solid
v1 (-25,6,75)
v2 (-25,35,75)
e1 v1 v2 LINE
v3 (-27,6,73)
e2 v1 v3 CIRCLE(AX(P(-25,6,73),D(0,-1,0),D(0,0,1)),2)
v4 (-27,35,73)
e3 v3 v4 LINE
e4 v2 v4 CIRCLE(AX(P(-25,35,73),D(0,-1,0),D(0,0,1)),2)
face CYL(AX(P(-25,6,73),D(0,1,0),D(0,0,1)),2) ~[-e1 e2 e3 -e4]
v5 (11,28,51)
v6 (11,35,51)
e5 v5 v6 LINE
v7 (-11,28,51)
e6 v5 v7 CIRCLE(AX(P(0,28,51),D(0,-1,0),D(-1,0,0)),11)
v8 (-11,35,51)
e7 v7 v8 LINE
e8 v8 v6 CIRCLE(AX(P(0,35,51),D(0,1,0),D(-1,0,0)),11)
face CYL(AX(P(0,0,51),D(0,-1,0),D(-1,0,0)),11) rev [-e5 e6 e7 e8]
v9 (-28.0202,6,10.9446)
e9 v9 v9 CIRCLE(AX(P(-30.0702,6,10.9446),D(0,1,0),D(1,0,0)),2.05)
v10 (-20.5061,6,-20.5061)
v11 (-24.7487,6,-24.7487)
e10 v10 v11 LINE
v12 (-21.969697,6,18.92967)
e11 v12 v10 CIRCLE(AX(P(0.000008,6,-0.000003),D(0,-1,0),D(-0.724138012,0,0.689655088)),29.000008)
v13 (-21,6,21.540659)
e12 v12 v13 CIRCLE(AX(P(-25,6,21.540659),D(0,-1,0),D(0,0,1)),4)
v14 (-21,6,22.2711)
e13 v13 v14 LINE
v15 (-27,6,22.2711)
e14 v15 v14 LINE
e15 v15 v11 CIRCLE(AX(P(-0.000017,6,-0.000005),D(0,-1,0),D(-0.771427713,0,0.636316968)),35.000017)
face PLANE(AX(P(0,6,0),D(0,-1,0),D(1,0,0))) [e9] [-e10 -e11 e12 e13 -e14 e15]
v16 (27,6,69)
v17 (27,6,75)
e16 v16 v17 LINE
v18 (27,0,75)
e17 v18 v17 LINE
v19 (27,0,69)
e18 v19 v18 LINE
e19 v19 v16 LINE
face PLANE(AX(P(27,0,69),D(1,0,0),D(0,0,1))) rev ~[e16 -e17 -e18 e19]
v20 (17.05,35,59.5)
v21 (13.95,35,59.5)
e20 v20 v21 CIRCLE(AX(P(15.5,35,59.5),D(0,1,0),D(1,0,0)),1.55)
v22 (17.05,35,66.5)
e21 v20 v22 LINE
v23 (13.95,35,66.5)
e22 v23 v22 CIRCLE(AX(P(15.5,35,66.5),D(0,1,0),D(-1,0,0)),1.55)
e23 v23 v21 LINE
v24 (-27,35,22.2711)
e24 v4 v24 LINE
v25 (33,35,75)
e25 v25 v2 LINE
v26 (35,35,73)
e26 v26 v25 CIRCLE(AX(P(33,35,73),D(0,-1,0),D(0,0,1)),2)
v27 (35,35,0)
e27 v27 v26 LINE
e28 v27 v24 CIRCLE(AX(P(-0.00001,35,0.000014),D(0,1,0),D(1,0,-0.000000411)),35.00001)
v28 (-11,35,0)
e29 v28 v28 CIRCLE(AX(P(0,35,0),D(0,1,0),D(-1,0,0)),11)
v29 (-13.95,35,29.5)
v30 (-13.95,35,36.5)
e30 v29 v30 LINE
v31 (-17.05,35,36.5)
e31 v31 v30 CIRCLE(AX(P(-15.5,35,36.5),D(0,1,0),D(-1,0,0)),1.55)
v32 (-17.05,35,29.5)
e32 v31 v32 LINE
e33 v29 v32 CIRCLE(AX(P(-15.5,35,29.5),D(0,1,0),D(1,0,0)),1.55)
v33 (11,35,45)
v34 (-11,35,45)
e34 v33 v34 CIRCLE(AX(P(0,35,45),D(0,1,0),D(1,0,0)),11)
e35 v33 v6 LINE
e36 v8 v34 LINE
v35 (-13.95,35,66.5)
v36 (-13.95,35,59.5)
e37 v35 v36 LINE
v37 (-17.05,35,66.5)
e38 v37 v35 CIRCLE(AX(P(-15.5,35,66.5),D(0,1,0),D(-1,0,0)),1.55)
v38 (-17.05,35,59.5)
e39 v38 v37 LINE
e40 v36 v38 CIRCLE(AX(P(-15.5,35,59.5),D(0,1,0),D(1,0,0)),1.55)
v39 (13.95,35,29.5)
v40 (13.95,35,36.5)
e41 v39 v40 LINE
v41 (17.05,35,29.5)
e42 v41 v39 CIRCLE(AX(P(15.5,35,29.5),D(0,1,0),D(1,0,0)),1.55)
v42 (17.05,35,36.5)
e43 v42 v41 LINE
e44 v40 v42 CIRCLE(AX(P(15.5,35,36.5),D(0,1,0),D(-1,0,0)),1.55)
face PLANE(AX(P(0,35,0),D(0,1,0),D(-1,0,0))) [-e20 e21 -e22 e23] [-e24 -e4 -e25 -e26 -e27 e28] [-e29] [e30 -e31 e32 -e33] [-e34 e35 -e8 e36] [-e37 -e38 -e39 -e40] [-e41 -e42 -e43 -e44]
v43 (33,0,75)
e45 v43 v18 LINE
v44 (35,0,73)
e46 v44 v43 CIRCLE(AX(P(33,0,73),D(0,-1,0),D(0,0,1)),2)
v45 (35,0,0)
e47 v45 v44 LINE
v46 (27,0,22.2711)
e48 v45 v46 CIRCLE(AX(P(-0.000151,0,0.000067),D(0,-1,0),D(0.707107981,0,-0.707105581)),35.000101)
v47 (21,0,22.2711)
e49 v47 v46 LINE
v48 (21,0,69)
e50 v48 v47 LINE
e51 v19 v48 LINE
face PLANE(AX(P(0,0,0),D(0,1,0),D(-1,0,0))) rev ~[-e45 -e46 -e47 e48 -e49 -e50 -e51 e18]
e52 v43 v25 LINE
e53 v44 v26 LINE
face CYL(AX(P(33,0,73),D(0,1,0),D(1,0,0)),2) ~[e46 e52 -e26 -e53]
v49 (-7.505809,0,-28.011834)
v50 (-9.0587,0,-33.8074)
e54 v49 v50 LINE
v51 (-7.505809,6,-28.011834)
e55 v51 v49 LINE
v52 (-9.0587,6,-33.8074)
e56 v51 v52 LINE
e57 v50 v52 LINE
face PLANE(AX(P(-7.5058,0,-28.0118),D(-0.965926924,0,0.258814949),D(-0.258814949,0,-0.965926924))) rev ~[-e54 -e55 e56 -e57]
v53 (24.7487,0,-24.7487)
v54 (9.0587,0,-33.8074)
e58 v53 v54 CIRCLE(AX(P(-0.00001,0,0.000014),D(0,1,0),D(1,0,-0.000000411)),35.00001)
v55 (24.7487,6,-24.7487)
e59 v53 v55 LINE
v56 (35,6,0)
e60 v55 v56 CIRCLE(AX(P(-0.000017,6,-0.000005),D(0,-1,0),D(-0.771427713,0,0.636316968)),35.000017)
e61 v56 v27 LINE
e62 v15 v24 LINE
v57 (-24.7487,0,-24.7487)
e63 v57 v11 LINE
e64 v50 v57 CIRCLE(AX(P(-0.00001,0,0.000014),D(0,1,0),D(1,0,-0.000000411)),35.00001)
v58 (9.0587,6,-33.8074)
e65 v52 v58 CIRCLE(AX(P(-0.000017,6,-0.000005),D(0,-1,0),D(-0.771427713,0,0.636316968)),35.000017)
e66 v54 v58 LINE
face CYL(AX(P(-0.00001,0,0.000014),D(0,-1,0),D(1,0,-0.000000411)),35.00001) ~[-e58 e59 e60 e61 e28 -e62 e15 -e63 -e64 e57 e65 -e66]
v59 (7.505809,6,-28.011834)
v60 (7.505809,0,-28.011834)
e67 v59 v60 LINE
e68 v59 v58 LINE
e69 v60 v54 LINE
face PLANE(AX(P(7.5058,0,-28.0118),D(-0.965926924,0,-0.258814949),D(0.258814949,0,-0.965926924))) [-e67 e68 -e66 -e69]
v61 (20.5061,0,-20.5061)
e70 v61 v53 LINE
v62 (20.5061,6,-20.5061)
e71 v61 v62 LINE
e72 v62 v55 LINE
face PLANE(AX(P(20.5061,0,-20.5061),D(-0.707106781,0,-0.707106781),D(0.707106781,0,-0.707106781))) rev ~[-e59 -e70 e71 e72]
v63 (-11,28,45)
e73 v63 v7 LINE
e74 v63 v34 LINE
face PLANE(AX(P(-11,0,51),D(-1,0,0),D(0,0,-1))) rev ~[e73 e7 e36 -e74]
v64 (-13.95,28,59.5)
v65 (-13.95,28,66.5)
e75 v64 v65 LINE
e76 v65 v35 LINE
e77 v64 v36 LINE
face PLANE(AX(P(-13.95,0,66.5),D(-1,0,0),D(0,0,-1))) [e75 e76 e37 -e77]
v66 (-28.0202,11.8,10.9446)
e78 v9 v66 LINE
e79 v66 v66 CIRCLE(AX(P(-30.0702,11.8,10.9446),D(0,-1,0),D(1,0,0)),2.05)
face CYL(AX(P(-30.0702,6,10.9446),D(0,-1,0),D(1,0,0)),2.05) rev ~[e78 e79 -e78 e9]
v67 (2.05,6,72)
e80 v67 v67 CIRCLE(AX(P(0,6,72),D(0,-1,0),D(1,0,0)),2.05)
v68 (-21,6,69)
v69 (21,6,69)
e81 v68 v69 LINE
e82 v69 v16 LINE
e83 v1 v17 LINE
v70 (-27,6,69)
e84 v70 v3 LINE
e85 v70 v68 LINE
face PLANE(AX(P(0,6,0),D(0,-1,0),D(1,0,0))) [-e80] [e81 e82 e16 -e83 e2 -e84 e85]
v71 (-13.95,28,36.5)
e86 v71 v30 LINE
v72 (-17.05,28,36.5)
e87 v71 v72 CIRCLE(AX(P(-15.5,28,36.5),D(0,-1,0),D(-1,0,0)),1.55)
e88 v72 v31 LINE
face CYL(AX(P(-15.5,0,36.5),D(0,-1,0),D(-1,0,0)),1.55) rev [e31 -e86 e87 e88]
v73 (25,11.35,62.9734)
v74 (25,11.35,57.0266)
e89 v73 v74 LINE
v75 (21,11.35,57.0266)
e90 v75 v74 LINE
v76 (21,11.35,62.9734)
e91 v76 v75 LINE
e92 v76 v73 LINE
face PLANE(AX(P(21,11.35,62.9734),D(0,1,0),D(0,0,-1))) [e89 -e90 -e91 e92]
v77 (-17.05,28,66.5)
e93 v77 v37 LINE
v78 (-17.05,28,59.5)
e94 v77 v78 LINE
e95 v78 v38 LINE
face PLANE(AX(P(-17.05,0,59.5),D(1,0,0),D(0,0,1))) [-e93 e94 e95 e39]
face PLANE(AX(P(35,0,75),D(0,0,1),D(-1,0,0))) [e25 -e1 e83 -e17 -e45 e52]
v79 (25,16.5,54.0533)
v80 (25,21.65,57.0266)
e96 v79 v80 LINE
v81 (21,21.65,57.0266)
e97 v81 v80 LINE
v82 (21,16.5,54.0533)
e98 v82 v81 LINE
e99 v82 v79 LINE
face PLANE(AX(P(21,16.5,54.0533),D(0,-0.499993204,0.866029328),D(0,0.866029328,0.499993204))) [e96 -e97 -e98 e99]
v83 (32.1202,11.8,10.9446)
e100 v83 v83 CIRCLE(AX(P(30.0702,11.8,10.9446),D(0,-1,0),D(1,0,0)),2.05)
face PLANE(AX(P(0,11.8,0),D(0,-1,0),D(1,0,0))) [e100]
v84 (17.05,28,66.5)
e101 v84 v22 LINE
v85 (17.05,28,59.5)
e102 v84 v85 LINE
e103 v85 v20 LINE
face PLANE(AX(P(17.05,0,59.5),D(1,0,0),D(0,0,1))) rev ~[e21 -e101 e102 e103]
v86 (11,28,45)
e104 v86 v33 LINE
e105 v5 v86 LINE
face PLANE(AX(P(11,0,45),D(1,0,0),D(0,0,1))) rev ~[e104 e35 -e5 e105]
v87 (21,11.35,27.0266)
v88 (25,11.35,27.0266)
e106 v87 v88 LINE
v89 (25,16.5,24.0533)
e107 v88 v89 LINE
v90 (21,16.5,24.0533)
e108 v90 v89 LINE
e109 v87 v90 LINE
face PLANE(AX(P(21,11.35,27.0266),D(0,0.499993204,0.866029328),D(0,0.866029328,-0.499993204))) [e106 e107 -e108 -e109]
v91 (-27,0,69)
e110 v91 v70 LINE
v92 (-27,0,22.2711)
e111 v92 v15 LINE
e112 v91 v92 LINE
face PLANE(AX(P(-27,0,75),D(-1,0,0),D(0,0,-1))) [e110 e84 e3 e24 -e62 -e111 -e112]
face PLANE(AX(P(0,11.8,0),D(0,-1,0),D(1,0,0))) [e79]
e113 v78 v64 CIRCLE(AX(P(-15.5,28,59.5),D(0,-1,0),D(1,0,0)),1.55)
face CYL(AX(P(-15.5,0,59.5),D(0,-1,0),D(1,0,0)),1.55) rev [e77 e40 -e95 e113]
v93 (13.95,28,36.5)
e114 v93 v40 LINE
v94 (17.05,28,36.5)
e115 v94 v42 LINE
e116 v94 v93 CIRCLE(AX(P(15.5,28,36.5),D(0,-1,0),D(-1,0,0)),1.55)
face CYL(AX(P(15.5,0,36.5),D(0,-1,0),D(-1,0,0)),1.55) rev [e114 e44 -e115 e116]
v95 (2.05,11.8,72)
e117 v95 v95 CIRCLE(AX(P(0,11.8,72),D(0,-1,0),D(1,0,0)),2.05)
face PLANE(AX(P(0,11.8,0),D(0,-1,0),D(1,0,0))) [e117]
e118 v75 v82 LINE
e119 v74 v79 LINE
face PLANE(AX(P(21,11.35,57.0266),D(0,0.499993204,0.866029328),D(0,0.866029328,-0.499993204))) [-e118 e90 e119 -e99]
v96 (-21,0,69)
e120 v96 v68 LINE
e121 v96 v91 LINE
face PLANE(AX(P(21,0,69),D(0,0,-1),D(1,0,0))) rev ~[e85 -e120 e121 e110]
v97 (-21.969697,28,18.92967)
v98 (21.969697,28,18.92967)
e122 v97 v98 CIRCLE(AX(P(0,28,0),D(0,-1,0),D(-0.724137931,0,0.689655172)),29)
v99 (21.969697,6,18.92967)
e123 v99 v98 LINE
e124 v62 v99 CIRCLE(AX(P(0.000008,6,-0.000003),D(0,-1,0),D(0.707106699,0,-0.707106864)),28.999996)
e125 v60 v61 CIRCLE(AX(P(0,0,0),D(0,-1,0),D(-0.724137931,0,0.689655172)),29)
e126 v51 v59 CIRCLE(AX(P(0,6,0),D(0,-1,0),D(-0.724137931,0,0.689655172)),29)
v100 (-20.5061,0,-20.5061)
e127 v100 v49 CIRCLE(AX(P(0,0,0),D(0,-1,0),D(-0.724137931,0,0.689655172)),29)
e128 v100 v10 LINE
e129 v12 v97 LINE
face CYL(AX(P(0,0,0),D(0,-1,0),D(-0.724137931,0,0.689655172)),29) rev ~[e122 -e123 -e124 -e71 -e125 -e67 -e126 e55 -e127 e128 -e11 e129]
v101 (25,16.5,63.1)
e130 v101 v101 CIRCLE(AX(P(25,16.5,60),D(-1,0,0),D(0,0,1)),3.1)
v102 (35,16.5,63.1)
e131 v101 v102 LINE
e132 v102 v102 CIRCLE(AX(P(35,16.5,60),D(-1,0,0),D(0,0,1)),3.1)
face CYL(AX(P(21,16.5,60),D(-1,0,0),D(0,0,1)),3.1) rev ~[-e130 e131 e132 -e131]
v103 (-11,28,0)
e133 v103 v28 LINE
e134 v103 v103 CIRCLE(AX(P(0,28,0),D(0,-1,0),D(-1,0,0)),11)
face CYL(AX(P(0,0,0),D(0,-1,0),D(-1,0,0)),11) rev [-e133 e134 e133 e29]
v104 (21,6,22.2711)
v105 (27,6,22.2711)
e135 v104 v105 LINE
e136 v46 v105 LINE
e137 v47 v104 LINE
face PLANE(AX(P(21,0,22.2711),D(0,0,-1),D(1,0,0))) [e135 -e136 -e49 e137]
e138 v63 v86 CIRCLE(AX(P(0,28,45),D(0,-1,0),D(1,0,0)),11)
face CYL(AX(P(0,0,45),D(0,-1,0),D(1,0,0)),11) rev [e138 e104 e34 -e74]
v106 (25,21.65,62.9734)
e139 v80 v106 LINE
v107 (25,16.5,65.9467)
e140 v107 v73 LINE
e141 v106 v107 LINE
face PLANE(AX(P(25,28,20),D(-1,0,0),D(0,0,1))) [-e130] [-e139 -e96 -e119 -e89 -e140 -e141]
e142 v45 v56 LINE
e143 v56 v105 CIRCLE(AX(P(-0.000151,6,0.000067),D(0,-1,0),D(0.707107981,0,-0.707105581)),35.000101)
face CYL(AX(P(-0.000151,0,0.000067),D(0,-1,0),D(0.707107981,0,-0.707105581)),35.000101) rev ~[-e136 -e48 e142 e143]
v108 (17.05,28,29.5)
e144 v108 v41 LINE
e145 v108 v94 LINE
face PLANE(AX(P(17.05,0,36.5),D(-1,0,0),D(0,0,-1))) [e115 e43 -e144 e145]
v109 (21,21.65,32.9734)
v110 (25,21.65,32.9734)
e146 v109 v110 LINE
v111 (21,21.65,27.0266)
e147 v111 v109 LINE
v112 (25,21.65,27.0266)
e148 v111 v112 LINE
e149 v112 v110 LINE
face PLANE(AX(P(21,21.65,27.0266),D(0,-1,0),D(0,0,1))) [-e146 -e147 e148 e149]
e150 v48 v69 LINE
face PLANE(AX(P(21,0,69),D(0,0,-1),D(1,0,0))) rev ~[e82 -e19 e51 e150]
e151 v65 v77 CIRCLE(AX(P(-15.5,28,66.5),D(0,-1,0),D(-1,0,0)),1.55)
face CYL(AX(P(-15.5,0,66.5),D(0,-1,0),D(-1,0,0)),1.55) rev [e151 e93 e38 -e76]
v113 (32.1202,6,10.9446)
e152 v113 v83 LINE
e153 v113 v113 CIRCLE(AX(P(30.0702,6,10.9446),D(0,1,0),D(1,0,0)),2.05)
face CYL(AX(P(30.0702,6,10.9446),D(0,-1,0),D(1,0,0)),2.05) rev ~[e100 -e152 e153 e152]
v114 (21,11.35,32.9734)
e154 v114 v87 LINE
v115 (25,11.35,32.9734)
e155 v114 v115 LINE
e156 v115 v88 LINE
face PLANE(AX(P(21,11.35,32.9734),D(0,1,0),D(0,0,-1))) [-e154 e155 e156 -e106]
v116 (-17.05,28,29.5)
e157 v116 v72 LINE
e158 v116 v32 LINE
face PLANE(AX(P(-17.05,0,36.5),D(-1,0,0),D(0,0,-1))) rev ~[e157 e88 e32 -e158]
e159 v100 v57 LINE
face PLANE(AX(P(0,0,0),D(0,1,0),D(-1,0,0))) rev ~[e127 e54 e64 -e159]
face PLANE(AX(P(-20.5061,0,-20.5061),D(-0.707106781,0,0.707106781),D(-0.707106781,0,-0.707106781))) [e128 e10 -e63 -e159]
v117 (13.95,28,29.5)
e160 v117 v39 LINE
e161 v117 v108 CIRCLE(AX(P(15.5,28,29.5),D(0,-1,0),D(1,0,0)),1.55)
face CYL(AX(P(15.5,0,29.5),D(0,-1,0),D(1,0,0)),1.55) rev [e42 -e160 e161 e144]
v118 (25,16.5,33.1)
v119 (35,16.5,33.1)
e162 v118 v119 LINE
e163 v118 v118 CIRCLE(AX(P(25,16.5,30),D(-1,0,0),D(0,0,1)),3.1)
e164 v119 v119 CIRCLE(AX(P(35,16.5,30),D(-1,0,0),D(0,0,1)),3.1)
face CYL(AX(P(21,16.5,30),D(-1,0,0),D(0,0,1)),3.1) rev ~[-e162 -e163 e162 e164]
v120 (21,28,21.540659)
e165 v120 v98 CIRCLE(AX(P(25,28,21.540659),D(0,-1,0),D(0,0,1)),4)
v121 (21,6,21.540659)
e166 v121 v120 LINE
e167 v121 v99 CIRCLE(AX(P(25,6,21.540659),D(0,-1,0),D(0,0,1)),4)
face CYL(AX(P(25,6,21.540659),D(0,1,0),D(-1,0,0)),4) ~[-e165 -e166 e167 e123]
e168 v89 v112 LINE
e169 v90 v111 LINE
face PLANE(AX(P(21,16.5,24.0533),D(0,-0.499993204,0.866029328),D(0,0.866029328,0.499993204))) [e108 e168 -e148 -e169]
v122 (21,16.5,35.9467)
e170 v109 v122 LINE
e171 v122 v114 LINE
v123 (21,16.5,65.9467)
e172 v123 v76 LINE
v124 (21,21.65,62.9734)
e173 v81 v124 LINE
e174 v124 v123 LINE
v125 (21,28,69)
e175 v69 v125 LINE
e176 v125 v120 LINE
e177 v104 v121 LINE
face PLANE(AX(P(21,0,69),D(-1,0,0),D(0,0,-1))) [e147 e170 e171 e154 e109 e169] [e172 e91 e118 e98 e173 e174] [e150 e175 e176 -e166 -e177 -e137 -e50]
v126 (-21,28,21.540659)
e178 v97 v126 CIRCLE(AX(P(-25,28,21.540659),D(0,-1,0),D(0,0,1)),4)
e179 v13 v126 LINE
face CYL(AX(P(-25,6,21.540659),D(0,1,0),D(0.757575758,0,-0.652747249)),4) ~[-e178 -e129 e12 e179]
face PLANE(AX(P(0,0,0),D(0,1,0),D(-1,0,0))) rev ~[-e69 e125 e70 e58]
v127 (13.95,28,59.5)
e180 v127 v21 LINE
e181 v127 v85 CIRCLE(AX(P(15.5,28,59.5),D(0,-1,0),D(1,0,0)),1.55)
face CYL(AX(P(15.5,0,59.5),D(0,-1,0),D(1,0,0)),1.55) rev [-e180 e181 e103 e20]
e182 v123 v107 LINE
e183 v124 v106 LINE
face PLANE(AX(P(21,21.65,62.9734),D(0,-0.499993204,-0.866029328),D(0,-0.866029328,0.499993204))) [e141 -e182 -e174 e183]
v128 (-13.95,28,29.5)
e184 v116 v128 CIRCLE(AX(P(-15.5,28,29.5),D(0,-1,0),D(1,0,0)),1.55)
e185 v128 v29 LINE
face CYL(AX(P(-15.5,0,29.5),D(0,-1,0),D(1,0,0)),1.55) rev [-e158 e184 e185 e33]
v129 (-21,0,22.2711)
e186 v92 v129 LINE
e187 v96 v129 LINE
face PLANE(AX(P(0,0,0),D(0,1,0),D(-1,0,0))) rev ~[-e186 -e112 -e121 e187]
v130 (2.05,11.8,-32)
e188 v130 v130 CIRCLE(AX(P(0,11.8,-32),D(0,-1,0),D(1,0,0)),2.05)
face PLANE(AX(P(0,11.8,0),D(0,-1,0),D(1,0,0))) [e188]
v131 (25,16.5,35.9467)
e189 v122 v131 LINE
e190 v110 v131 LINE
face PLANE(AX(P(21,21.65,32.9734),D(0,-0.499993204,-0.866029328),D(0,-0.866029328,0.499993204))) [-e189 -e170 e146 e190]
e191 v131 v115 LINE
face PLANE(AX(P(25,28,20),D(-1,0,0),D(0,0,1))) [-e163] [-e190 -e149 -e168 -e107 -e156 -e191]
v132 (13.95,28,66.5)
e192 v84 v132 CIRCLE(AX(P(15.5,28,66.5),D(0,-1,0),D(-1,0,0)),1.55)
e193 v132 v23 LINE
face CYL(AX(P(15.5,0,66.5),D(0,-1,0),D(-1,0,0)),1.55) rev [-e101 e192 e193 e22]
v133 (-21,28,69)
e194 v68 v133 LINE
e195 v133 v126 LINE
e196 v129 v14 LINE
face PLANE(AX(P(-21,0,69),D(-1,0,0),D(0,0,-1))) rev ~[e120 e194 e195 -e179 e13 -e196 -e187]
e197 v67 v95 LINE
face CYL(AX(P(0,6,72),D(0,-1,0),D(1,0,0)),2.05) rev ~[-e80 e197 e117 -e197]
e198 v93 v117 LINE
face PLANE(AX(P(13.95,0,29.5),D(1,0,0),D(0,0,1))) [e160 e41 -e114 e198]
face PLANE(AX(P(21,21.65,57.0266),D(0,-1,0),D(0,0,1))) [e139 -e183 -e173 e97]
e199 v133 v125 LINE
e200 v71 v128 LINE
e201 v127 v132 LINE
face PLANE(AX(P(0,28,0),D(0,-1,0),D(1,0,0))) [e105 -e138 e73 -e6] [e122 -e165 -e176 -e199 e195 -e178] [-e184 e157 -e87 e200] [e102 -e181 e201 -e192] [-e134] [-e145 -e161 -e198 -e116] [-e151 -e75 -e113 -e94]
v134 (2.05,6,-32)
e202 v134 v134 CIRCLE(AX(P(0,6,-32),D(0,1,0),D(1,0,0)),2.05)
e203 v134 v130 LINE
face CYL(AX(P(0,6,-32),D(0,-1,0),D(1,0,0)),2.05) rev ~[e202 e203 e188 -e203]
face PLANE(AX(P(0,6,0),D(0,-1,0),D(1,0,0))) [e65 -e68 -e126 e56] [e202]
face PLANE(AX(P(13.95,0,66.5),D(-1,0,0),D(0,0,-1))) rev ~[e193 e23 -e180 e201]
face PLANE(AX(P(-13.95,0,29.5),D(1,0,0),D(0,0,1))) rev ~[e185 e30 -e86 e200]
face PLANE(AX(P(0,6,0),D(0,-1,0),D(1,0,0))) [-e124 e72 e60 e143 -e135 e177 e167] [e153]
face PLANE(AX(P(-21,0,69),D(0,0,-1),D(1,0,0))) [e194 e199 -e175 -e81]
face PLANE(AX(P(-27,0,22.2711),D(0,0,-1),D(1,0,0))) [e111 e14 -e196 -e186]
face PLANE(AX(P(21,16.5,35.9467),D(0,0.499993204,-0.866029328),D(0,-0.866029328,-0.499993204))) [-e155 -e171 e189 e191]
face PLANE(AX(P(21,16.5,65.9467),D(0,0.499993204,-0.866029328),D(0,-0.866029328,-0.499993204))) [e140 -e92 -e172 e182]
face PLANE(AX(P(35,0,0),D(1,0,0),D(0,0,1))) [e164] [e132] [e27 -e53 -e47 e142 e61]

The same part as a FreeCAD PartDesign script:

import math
import FreeCAD as App
import Part
import Sketcher

V = App.Vector
Q = App.Units.Quantity


def edges_at(feature, points):
    """Names of the edges that pass closest to the given points."""
    edges = feature.Shape.Edges
    near = lambda p: min(range(len(edges)), key=lambda i: edges[i].distToShape(Part.Vertex(*p))[0])
    return sorted({f"Edge{near(p) + 1}" for p in points})

doc = App.newDocument("Part")
body = doc.addObject("PartDesign::Body", "Body")

# Sketch on XZ plane
sketch1 = doc.addObject("Sketcher::SketchObject", "Sketch")
body.addObject(sketch1)
sketch1.AttachmentSupport = (doc.XZ_Plane, [""])
sketch1.MapMode = "FlatFace"
sketch1.addGeometry([
    Part.LineSegment(V(35, 75, 0), V(35, 0, 0)),  # 0
    Part.ArcOfCircle(Part.Circle(V(0, 0, 0), V(0, 0, 1), 35), math.radians(140), math.radians(360)),  # 1
    Part.LineSegment(V(-27, 22.3, 0), V(-27, 75, 0)),  # 2
    Part.LineSegment(V(-27, 75, 0), V(35, 75, 0)),  # 3
    Part.Circle(V(0, 0, 0), V(0, 0, 1), 11),  # 4
    Part.LineSegment(V(13.9, 36.5, 0), V(13.9, 29.5, 0)),  # 5
    Part.ArcOfCircle(Part.Circle(V(15.5, 29.5, 0), V(0, 0, 1), 1.6), math.radians(180), math.radians(360)),  # 6
    Part.LineSegment(V(17.1, 29.5, 0), V(17.1, 36.5, 0)),  # 7
    Part.ArcOfCircle(Part.Circle(V(15.5, 36.5, 0), V(0, 0, 1), 1.6), math.radians(0), math.radians(180)),  # 8
    Part.ArcOfCircle(Part.Circle(V(0, 45, 0), V(0, 0, 1), 11), math.radians(180), math.radians(360)),  # 9
    Part.LineSegment(V(11, 45, 0), V(11, 51, 0)),  # 10
    Part.ArcOfCircle(Part.Circle(V(0, 51, 0), V(0, 0, 1), 11), math.radians(0), math.radians(180)),  # 11
    Part.LineSegment(V(-11, 51, 0), V(-11, 45, 0)),  # 12
    Part.ArcOfCircle(Part.Circle(V(15.5, 66.5, 0), V(0, 0, 1), 1.6), math.radians(0), math.radians(180)),  # 13
    Part.LineSegment(V(13.9, 66.5, 0), V(13.9, 59.5, 0)),  # 14
    Part.ArcOfCircle(Part.Circle(V(15.5, 59.5, 0), V(0, 0, 1), 1.6), math.radians(180), math.radians(360)),  # 15
    Part.LineSegment(V(17.1, 59.5, 0), V(17.1, 66.5, 0)),  # 16
    Part.ArcOfCircle(Part.Circle(V(-15.5, 29.5, 0), V(0, 0, 1), 1.6), math.radians(180), math.radians(360)),  # 17
    Part.LineSegment(V(-13.9, 29.5, 0), V(-13.9, 36.5, 0)),  # 18
    Part.ArcOfCircle(Part.Circle(V(-15.5, 36.5, 0), V(0, 0, 1), 1.6), math.radians(0), math.radians(180)),  # 19
    Part.LineSegment(V(-17.1, 36.5, 0), V(-17.1, 29.5, 0)),  # 20
    Part.LineSegment(V(-13.9, 59.5, 0), V(-13.9, 66.5, 0)),  # 21
    Part.ArcOfCircle(Part.Circle(V(-15.5, 66.5, 0), V(0, 0, 1), 1.6), math.radians(0), math.radians(180)),  # 22
    Part.LineSegment(V(-17.1, 66.5, 0), V(-17.1, 59.5, 0)),  # 23
    Part.ArcOfCircle(Part.Circle(V(-15.5, 59.5, 0), V(0, 0, 1), 1.6), math.radians(180), math.radians(360)),  # 24
], False)
sketch1.addConstraint([
    Sketcher.Constraint("Tangent", 0, 2, 1, 2),
    Sketcher.Constraint("Coincident", 1, 1, 2, 1),
    Sketcher.Constraint("Coincident", 2, 2, 3, 1),
    Sketcher.Constraint("Coincident", 3, 2, 0, 1),
    Sketcher.Constraint("Tangent", 5, 2, 6, 1),
    Sketcher.Constraint("Tangent", 6, 2, 7, 1),
    Sketcher.Constraint("Tangent", 7, 2, 8, 1),
    Sketcher.Constraint("Tangent", 8, 2, 5, 1),
    Sketcher.Constraint("Tangent", 9, 2, 10, 1),
    Sketcher.Constraint("Tangent", 10, 2, 11, 1),
    Sketcher.Constraint("Tangent", 11, 2, 12, 1),
    Sketcher.Constraint("Tangent", 12, 2, 9, 1),
    Sketcher.Constraint("Tangent", 13, 2, 14, 1),
    Sketcher.Constraint("Tangent", 14, 2, 15, 1),
    Sketcher.Constraint("Tangent", 15, 2, 16, 1),
    Sketcher.Constraint("Tangent", 16, 2, 13, 1),
    Sketcher.Constraint("Tangent", 17, 2, 18, 1),
    Sketcher.Constraint("Tangent", 18, 2, 19, 1),
    Sketcher.Constraint("Tangent", 19, 2, 20, 1),
    Sketcher.Constraint("Tangent", 20, 2, 17, 1),
    Sketcher.Constraint("Tangent", 21, 2, 22, 1),
    Sketcher.Constraint("Tangent", 22, 2, 23, 1),
    Sketcher.Constraint("Tangent", 23, 2, 24, 1),
    Sketcher.Constraint("Tangent", 24, 2, 21, 1),
    Sketcher.Constraint("Vertical", 0),
    Sketcher.Constraint("Vertical", 2),
    Sketcher.Constraint("Horizontal", 3),
    Sketcher.Constraint("Vertical", 5),
    Sketcher.Constraint("Vertical", 7),
    Sketcher.Constraint("Vertical", 10),
    Sketcher.Constraint("Vertical", 12),
    Sketcher.Constraint("Vertical", 14),
    Sketcher.Constraint("Vertical", 16),
    Sketcher.Constraint("Vertical", 18),
    Sketcher.Constraint("Vertical", 20),
    Sketcher.Constraint("Vertical", 21),
    Sketcher.Constraint("Vertical", 23),
    Sketcher.Constraint("Coincident", 1, 3, -1, 1),
    Sketcher.Constraint("Coincident", 4, 3, -1, 1),
    Sketcher.Constraint("Equal", 4, 9),
    Sketcher.Constraint("Equal", 8, 13),
    Sketcher.Constraint("Equal", 15, 17),
    Sketcher.Constraint("Equal", 19, 22),
    Sketcher.Constraint("Symmetric", 6, 3, 17, 3, -2),
    Sketcher.Constraint("Symmetric", 13, 3, 22, 3, -2),
    Sketcher.Constraint("PointOnObject", 9, 3, -2),
    Sketcher.Constraint("Horizontal", 8, 3, 19, 3),
    Sketcher.Constraint("Horizontal", 15, 3, 24, 3),
    Sketcher.Constraint("Vertical", 8, 3, 13, 3),
    Sketcher.Constraint("Equal", 7, 14),
    Sketcher.Constraint("Diameter", 4, Q("22 mm")),
    Sketcher.Constraint("Radius", 1, Q("35 mm")),
    Sketcher.Constraint("DistanceX", 3, 1, 3, 2, Q("62 mm")),
    Sketcher.Constraint("DistanceY", 0, 2, 0, 1, Q("75 mm")),
    Sketcher.Constraint("DistanceY", 5, 2, 5, 1, Q("7 mm")),
    Sketcher.Constraint("DistanceY", 10, 1, 10, 2, Q("6 mm")),
    Sketcher.Constraint("Radius", 6, Q("1.55 mm")),
    Sketcher.Constraint("DistanceY", -1, 1, 9, 3, Q("45 mm")),
    Sketcher.Constraint("DistanceX", -1, 1, 6, 3, Q("15.5 mm")),
    Sketcher.Constraint("DistanceY", 6, 3, 9, 3, Q("15.5 mm")),
    Sketcher.Constraint("DistanceY", 11, 3, 13, 3, Q("15.5 mm")),
])
pad1 = doc.addObject("PartDesign::Pad", "Pad")
body.addObject(pad1)
pad1.Profile = sketch1
pad1.Length = 35
pad1.Reversed = True

# Sketch on XZ plane
sketch2 = doc.addObject("Sketcher::SketchObject", "Sketch001")
body.addObject(sketch2)
sketch2.AttachmentSupport = (doc.XZ_Plane, [""])
sketch2.MapMode = "FlatFace"
sketch2.addGeometry([
    Part.LineSegment(V(21, 69, 0), V(-21, 69, 0)),
    Part.LineSegment(V(-21, 69, 0), V(-21, 20, 0)),
    Part.ArcOfCircle(Part.Circle(V(0, 0, 0), V(0, 0, 1), 29), math.radians(136), math.radians(404)),
    Part.LineSegment(V(21, 20, 0), V(21, 69, 0)),
], False)
sketch2.addConstraint([
    Sketcher.Constraint("Coincident", 0, 2, 1, 1),
    Sketcher.Constraint("Coincident", 1, 2, 2, 1),
    Sketcher.Constraint("Coincident", 2, 2, 3, 1),
    Sketcher.Constraint("Coincident", 3, 2, 0, 1),
    Sketcher.Constraint("Horizontal", 0),
    Sketcher.Constraint("Vertical", 1),
    Sketcher.Constraint("Vertical", 3),
    Sketcher.Constraint("Coincident", 2, 3, -1, 1),
    Sketcher.Constraint("Horizontal", 1, 2, 2, 2),
    Sketcher.Constraint("Radius", 2, Q("29 mm")),
    Sketcher.Constraint("DistanceX", 0, 2, 0, 1, Q("42 mm")),
    Sketcher.Constraint("DistanceY", 1, 2, 1, 1, Q("49 mm")),
])
pocket1 = doc.addObject("PartDesign::Pocket", "Pocket")
body.addObject(pocket1)
pocket1.Profile = sketch2
pocket1.Length = 28

# Sketch on XZ plane
sketch3 = doc.addObject("Sketcher::SketchObject", "Sketch002")
body.addObject(sketch3)
sketch3.AttachmentSupport = (doc.XZ_Plane, [""])
sketch3.MapMode = "FlatFace"
sketch3.addGeometry([
    Part.LineSegment(V(27, 75, 0), V(-27, 75, 0)),  # 0
    Part.LineSegment(V(-27, 75, 0), V(-27, 69, 0)),  # 1
    Part.LineSegment(V(-27, 69, 0), V(27, 69, 0)),  # 2
    Part.LineSegment(V(27, 69, 0), V(27, 75, 0)),  # 3
    Part.LineSegment(V(-21, 22.3, 0), V(-27, 22.3, 0)),  # 4
    Part.ArcOfCircle(Part.Circle(V(0, 0, 0), V(0, 0, 1), 35), math.radians(140), math.radians(225)),  # 5
    Part.LineSegment(V(-24.7, -24.7, 0), V(-20.5, -20.5, 0)),  # 6
    Part.ArcOfCircle(Part.Circle(V(0, 0, 0), V(0, 0, 1), 29), math.radians(136), math.radians(225)),  # 7
    Part.LineSegment(V(-21, 20, 0), V(-21, 22.3, 0)),  # 8
    Part.ArcOfCircle(Part.Circle(V(0, 0, 0), V(0, 0, 1), 35), math.radians(-45), math.radians(0)),  # 9
    Part.ArcOfCircle(Part.Circle(V(0, 0, 0), V(0, 0, 1), 35), math.radians(0), math.radians(40)),  # 10
    Part.LineSegment(V(27, 22.3, 0), V(21, 22.3, 0)),  # 11
    Part.LineSegment(V(21, 22.3, 0), V(21, 20, 0)),  # 12
    Part.ArcOfCircle(Part.Circle(V(0, 0, 0), V(0, 0, 1), 29), math.radians(-45), math.radians(44)),  # 13
    Part.LineSegment(V(20.5, -20.5, 0), V(24.7, -24.7, 0)),  # 14
    Part.LineSegment(V(-7.5, -28, 0), V(-9.1, -33.8, 0)),  # 15
    Part.ArcOfCircle(Part.Circle(V(0, 0, 0), V(0, 0, 1), 35), math.radians(-105), math.radians(-75)),  # 16
    Part.LineSegment(V(9.1, -33.8, 0), V(7.5, -28, 0)),  # 17
    Part.ArcOfCircle(Part.Circle(V(0, 0, 0), V(0, 0, 1), 29), math.radians(-105), math.radians(-75)),  # 18
], False)
sketch3.addConstraint([
    Sketcher.Constraint("Coincident", 0, 2, 1, 1),
    Sketcher.Constraint("Coincident", 1, 2, 2, 1),
    Sketcher.Constraint("Coincident", 2, 2, 3, 1),
    Sketcher.Constraint("Coincident", 3, 2, 0, 1),
    Sketcher.Constraint("Coincident", 4, 2, 5, 1),
    Sketcher.Constraint("Coincident", 5, 2, 6, 1),
    Sketcher.Constraint("Coincident", 6, 2, 7, 2),
    Sketcher.Constraint("Coincident", 7, 1, 8, 1),
    Sketcher.Constraint("Coincident", 8, 2, 4, 1),
    Sketcher.Constraint("Tangent", 9, 2, 10, 1),
    Sketcher.Constraint("Coincident", 10, 2, 11, 1),
    Sketcher.Constraint("Coincident", 11, 2, 12, 1),
    Sketcher.Constraint("Coincident", 12, 2, 13, 2),
    Sketcher.Constraint("Coincident", 13, 1, 14, 1),
    Sketcher.Constraint("Coincident", 14, 2, 9, 1),
    Sketcher.Constraint("Coincident", 15, 2, 16, 1),
    Sketcher.Constraint("Coincident", 16, 2, 17, 1),
    Sketcher.Constraint("Coincident", 17, 2, 18, 2),
    Sketcher.Constraint("Coincident", 18, 1, 15, 1),
    Sketcher.Constraint("Horizontal", 0),
    Sketcher.Constraint("Vertical", 1),
    Sketcher.Constraint("Horizontal", 2),
    Sketcher.Constraint("Vertical", 3),
    Sketcher.Constraint("Horizontal", 4),
    Sketcher.Constraint("Vertical", 8),
    Sketcher.Constraint("Horizontal", 11),
    Sketcher.Constraint("Vertical", 12),
    Sketcher.Constraint("Coincident", 5, 3, -1, 1),
    Sketcher.Constraint("Coincident", 7, 3, -1, 1),
    Sketcher.Constraint("Coincident", 9, 3, -1, 1),
    Sketcher.Constraint("Coincident", 13, 3, -1, 1),
    Sketcher.Constraint("Coincident", 16, 3, -1, 1),
    Sketcher.Constraint("Coincident", 18, 3, -1, 1),
    Sketcher.Constraint("Equal", 5, 9),
    Sketcher.Constraint("Equal", 9, 10),
    Sketcher.Constraint("Equal", 7, 13),
    Sketcher.Constraint("Equal", 10, 16),
    Sketcher.Constraint("Equal", 13, 18),
    Sketcher.Constraint("Symmetric", 8, 2, 11, 2, -2),
    Sketcher.Constraint("PointOnObject", 9, 2, -1),
    Sketcher.Constraint("Perpendicular", 6, 14),
    Sketcher.Constraint("Horizontal", 6, 2, 13, 1),
    Sketcher.Constraint("Horizontal", 5, 2, 14, 2),
    Sketcher.Constraint("Horizontal", 15, 2, 16, 2),
    Sketcher.Constraint("Horizontal", 17, 2, 18, 1),
    Sketcher.Constraint("Vertical", 1, 2, 4, 2),
    Sketcher.Constraint("Vertical", 3, 2, 10, 2),
    Sketcher.Constraint("Equal", 11, 1),
    Sketcher.Constraint("Radius", 5, Q("35 mm")),
    Sketcher.Constraint("Radius", 7, Q("29 mm")),
    Sketcher.Constraint("DistanceX", 10, 2, 9, 2, Q("8 mm")),
    Sketcher.Constraint("DistanceX", 4, 2, 4, 1, Q("6 mm")),
    Sketcher.Constraint("Angle", 15, Q("-104.9998 deg")),
    Sketcher.Constraint("DistanceY", -1, 1, 0, 2, Q("75 mm")),
    Sketcher.Constraint("DistanceX", 5, 2, 15, 2, Q("15.69 mm")),
    Sketcher.Constraint("DistanceX", 6, 2, -1, 1, Q("20.506 mm")),
])
pocket2 = doc.addObject("PartDesign::Pocket", "Pocket001")
body.addObject(pocket2)
pocket2.Profile = sketch3
pocket2.Length = 6

# Sketch on YZ plane
sketch4 = doc.addObject("Sketcher::SketchObject", "Sketch003")
body.addObject(sketch4)
sketch4.AttachmentSupport = (doc.YZ_Plane, [""])
sketch4.MapMode = "FlatFace"
sketch4.AttachmentOffset = App.Placement(V(0, 0, 21), App.Rotation())
sketch4.addGeometry([
    Part.Circle(V(16.5, 30, 0), V(0, 0, 1), 3.1),
    Part.Circle(V(16.5, 60, 0), V(0, 0, 1), 3.1),
], False)
sketch4.addConstraint([
    Sketcher.Constraint("Equal", 0, 1),
    Sketcher.Constraint("Vertical", 0, 3, 1, 3),
    Sketcher.Constraint("Diameter", 0, Q("6.2 mm")),
    Sketcher.Constraint("DistanceY", -1, 1, 0, 3, Q("30 mm")),
    Sketcher.Constraint("DistanceY", 0, 3, 1, 3, Q("30 mm")),
    Sketcher.Constraint("DistanceX", -1, 1, 0, 3, Q("16.5 mm")),
])
pocket3 = doc.addObject("PartDesign::Pocket", "Pocket002")
body.addObject(pocket3)
pocket3.Profile = sketch4
pocket3.Type = "UpToFirst"
pocket3.Reversed = True

# Sketch on YZ plane
sketch5 = doc.addObject("Sketcher::SketchObject", "Sketch004")
body.addObject(sketch5)
sketch5.AttachmentSupport = (doc.YZ_Plane, [""])
sketch5.MapMode = "FlatFace"
sketch5.AttachmentOffset = App.Placement(V(0, 0, 21), App.Rotation())
sketch5.addGeometry([
    Part.LineSegment(V(16.5, 54.1, 0), V(11.3, 57, 0)),  # 0
    Part.LineSegment(V(11.3, 57, 0), V(11.3, 63, 0)),  # 1
    Part.LineSegment(V(11.3, 63, 0), V(16.5, 65.9, 0)),  # 2
    Part.LineSegment(V(16.5, 65.9, 0), V(21.6, 63, 0)),  # 3
    Part.LineSegment(V(21.6, 63, 0), V(21.6, 57, 0)),  # 4
    Part.LineSegment(V(21.6, 57, 0), V(16.5, 54.1, 0)),  # 5
    Part.Circle(V(16.5, 60, 0), V(0, 0, 1), 3.1),  # 6
    Part.LineSegment(V(16.5, 24.1, 0), V(11.3, 27, 0)),  # 7
    Part.LineSegment(V(11.3, 27, 0), V(11.3, 33, 0)),  # 8
    Part.LineSegment(V(11.3, 33, 0), V(16.5, 35.9, 0)),  # 9
    Part.LineSegment(V(16.5, 35.9, 0), V(21.6, 33, 0)),  # 10
    Part.LineSegment(V(21.6, 33, 0), V(21.6, 27, 0)),  # 11
    Part.LineSegment(V(21.6, 27, 0), V(16.5, 24.1, 0)),  # 12
    Part.Circle(V(16.5, 30, 0), V(0, 0, 1), 3.1),  # 13
], False)
sketch5.addConstraint([
    Sketcher.Constraint("Coincident", 0, 2, 1, 1),
    Sketcher.Constraint("Coincident", 1, 2, 2, 1),
    Sketcher.Constraint("Coincident", 2, 2, 3, 1),
    Sketcher.Constraint("Coincident", 3, 2, 4, 1),
    Sketcher.Constraint("Coincident", 4, 2, 5, 1),
    Sketcher.Constraint("Coincident", 5, 2, 0, 1),
    Sketcher.Constraint("Coincident", 7, 2, 8, 1),
    Sketcher.Constraint("Coincident", 8, 2, 9, 1),
    Sketcher.Constraint("Coincident", 9, 2, 10, 1),
    Sketcher.Constraint("Coincident", 10, 2, 11, 1),
    Sketcher.Constraint("Coincident", 11, 2, 12, 1),
    Sketcher.Constraint("Coincident", 12, 2, 7, 1),
    Sketcher.Constraint("Vertical", 1),
    Sketcher.Constraint("Vertical", 4),
    Sketcher.Constraint("Vertical", 8),
    Sketcher.Constraint("Vertical", 11),
    Sketcher.Constraint("Equal", 6, 13),
    Sketcher.Constraint("Parallel", 0, 3),
    Sketcher.Constraint("Parallel", 2, 5),
    Sketcher.Constraint("Parallel", 3, 7),
    Sketcher.Constraint("Parallel", 5, 9),
    Sketcher.Constraint("Parallel", 7, 10),
    Sketcher.Constraint("Parallel", 9, 12),
    Sketcher.Constraint("Horizontal", 1, 2, 3, 2),
    Sketcher.Constraint("Horizontal", 0, 2, 4, 2),
    Sketcher.Constraint("Horizontal", 8, 2, 10, 2),
    Sketcher.Constraint("Horizontal", 7, 2, 11, 2),
    Sketcher.Constraint("Vertical", 6, 3, 13, 3),
    Sketcher.Constraint("Vertical", 13, 3, 2, 2),
    Sketcher.Constraint("Vertical", 2, 2, 5, 2),
    Sketcher.Constraint("Vertical", 1, 2, 7, 2),
    Sketcher.Constraint("Vertical", 5, 2, 9, 2),
    Sketcher.Constraint("Equal", 4, 8),
    Sketcher.Constraint("Diameter", 6, Q("6.2 mm")),
    Sketcher.Constraint("DistanceX", 1, 2, 3, 2, Q("10.3 mm")),
    Sketcher.Constraint("Angle", 0, Q("150.0004 deg")),
    Sketcher.Constraint("DistanceY", -1, 1, 6, 3, Q("60 mm")),
    Sketcher.Constraint("DistanceY", -1, 1, 13, 3, Q("30 mm")),
    Sketcher.Constraint("DistanceY", 7, 2, 0, 2, Q("30 mm")),
    Sketcher.Constraint("DistanceX", -1, 1, 6, 3, Q("16.5 mm")),
    Sketcher.Constraint("DistanceY", 0, 2, 2, 2, Q("8.92 mm")),
    Sketcher.Constraint("DistanceY", -1, 1, 0, 2, Q("57.0266 mm")),
])
pocket4 = doc.addObject("PartDesign::Pocket", "Pocket003")
body.addObject(pocket4)
pocket4.Profile = sketch5
pocket4.Length = 4
pocket4.Reversed = True
doc.recompute()

fillet = doc.addObject("PartDesign::Fillet", "Fillet")
body.addObject(fillet)
fillet.Base = (pocket4, edges_at(pocket4, [(-27, 20.5, 75), (35, 17.5, 75)]))
fillet.Radius = 2
doc.recompute()

fillet2 = doc.addObject("PartDesign::Fillet", "Fillet001")
body.addObject(fillet2)
fillet2.Base = (fillet, edges_at(fillet, [(21, 17, 20), (-21, 17, 20)]))
fillet2.Radius = 4

# Sketch on XZ plane
sketch6 = doc.addObject("Sketcher::SketchObject", "Sketch005")
body.addObject(sketch6)
sketch6.AttachmentSupport = (doc.XZ_Plane, [""])
sketch6.MapMode = "FlatFace"
sketch6.AttachmentOffset = App.Placement(V(0, 0, -6), App.Rotation())
sketch6.addGeometry([
    Part.Circle(V(0, 72, 0), V(0, 0, 1), 2),
    Part.Circle(V(30.1, 10.9, 0), V(0, 0, 1), 2),
    Part.Circle(V(0, -32, 0), V(0, 0, 1), 2),
    Part.Circle(V(-30.1, 10.9, 0), V(0, 0, 1), 2),
], False)
sketch6.addConstraint([
    Sketcher.Constraint("Equal", 0, 1),
    Sketcher.Constraint("Equal", 1, 2),
    Sketcher.Constraint("Equal", 2, 3),
    Sketcher.Constraint("Symmetric", 1, 3, 3, 3, -2),
    Sketcher.Constraint("PointOnObject", 0, 3, -2),
    Sketcher.Constraint("PointOnObject", 2, 3, -2),
    Sketcher.Constraint("Diameter", 0, Q("4.1 mm")),
    Sketcher.Constraint("DistanceY", -1, 1, 0, 3, Q("72 mm")),
    Sketcher.Constraint("DistanceY", 2, 3, -1, 1, Q("32 mm")),
    Sketcher.Constraint("DistanceX", -1, 1, 1, 3, Q("30.0702 mm")),
    Sketcher.Constraint("DistanceY", -1, 1, 1, 3, Q("10.9446 mm")),
])
pocket5 = doc.addObject("PartDesign::Pocket", "Pocket004")
body.addObject(pocket5)
pocket5.Profile = sketch6
pocket5.Length = 5.8

doc.recompute()
